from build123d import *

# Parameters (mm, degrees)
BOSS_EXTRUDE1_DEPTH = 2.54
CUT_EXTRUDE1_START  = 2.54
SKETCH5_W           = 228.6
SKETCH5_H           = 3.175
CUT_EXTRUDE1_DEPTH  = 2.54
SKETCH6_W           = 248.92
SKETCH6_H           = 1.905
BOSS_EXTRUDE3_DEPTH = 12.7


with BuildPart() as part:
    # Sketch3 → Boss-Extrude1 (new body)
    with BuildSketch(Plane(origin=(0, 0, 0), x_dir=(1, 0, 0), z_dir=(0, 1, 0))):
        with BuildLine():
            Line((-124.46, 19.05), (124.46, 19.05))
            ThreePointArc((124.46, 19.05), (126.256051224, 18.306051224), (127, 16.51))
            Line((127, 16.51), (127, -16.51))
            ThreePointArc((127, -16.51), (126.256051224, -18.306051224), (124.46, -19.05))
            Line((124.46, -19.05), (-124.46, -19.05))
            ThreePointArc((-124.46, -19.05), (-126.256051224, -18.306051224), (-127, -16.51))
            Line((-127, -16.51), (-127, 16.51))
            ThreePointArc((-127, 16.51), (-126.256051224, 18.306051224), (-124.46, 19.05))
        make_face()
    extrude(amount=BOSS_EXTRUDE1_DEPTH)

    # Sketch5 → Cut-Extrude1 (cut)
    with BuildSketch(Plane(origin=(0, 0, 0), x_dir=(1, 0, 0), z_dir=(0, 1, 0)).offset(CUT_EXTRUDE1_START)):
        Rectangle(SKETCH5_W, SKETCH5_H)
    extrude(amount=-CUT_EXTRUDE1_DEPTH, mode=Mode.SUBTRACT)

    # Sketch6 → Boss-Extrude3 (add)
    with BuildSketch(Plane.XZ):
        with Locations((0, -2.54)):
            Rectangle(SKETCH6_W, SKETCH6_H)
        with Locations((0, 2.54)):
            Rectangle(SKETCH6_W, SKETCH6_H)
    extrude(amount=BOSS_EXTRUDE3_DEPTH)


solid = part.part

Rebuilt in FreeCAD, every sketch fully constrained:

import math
import FreeCAD as App
import Part
import Sketcher
Q = App.Units.Quantity

doc = App.newDocument("Part")
params = doc.addObject("Spreadsheet::Sheet", "Params")
for row, (alias, value) in enumerate([
    ("sketch1_radius", "0.1 in"),
    ("sketch1_width", "9.8 in"),
    ("sketch1_height", "1.3 in"),
    ("pad1_length", "0.1 in"),
    ("sketch2_width", "9 in"),
    ("sketch2_height", "0.125 in"),
    ("pocket1_length", "0.1 in"),
    ("sketch3_width", "9.8 in"),
    ("sketch3_height", "0.075 in"),
    ("pad2_length", "0.5 in"),
], start=1):
    params.set(f"A{row}", alias)
    params.set(f"B{row}", "=" + value)
    params.setAlias(f"B{row}", alias)

body = doc.addObject("PartDesign::Body", "Body")

sketch1 = body.newObject("Sketcher::SketchObject", "Sketch")
sketch1.AttachmentSupport = (doc.getObject("XZ_Plane"), [""])
sketch1.MapMode = "FlatFace"
sketch1.addGeometry(Part.LineSegment(App.Vector(124.5, -19.1, 0), App.Vector(-124.5, -19.1, 0)), False)
sketch1.addGeometry(Part.ArcOfCircle(Part.Circle(App.Vector(-124.5, -16.5, 0), App.Vector(0, 0, 1), 2.5), math.radians(-180), math.radians(-90)), False)
sketch1.addGeometry(Part.LineSegment(App.Vector(-127, -16.5, 0), App.Vector(-127, 16.5, 0)), False)
sketch1.addGeometry(Part.ArcOfCircle(Part.Circle(App.Vector(-124.5, 16.5, 0), App.Vector(0, 0, 1), 2.5), math.radians(90), math.radians(180)), False)
sketch1.addGeometry(Part.LineSegment(App.Vector(-124.5, 19.1, 0), App.Vector(124.5, 19.1, 0)), False)
sketch1.addGeometry(Part.ArcOfCircle(Part.Circle(App.Vector(124.5, 16.5, 0), App.Vector(0, 0, 1), 2.5), math.radians(0), math.radians(90)), False)
sketch1.addGeometry(Part.LineSegment(App.Vector(127, 16.5, 0), App.Vector(127, -16.5, 0)), False)
sketch1.addGeometry(Part.ArcOfCircle(Part.Circle(App.Vector(124.5, -16.5, 0), App.Vector(0, 0, 1), 2.5), math.radians(-90), math.radians(0)), False)
sketch1.addConstraint(Sketcher.Constraint("Tangent", 0, 2, 1, 2))
sketch1.addConstraint(Sketcher.Constraint("Tangent", 1, 1, 2, 1))
sketch1.addConstraint(Sketcher.Constraint("Tangent", 2, 2, 3, 2))
sketch1.addConstraint(Sketcher.Constraint("Tangent", 3, 1, 4, 1))
sketch1.addConstraint(Sketcher.Constraint("Tangent", 4, 2, 5, 2))
sketch1.addConstraint(Sketcher.Constraint("Tangent", 5, 1, 6, 1))
sketch1.addConstraint(Sketcher.Constraint("Tangent", 6, 2, 7, 2))
sketch1.addConstraint(Sketcher.Constraint("Tangent", 7, 1, 0, 1))
sketch1.addConstraint(Sketcher.Constraint("Horizontal", 0))
sketch1.addConstraint(Sketcher.Constraint("Vertical", 2))
sketch1.addConstraint(Sketcher.Constraint("Horizontal", 4))
sketch1.addConstraint(Sketcher.Constraint("Vertical", 6))
sketch1.addConstraint(Sketcher.Constraint("Equal", 1, 3))
sketch1.addConstraint(Sketcher.Constraint("Equal", 3, 5))
sketch1.addConstraint(Sketcher.Constraint("Equal", 5, 7))
sketch1.addConstraint(Sketcher.Constraint("Symmetric", 1, 3, 5, 3, -1, 1))
sketch1.addConstraint(Sketcher.Constraint("Radius", 1, Q("0.1 in")))
sketch1.addConstraint(Sketcher.Constraint("DistanceX", 0, 2, 0, 1, Q("9.8 in")))
sketch1.addConstraint(Sketcher.Constraint("DistanceY", 2, 1, 2, 2, Q("1.3 in")))
sketch1.setExpression("Constraints[16]", "Params.sketch1_radius")
sketch1.setExpression("Constraints[17]", "Params.sketch1_width")
sketch1.setExpression("Constraints[18]", "Params.sketch1_height")
pad1 = body.newObject("PartDesign::Pad", "Pad")
pad1.Profile = sketch1
pad1.setExpression("Length", "Params.pad1_length")
pad1.Reversed = True

sketch2 = body.newObject("Sketcher::SketchObject", "Sketch001")
sketch2.AttachmentSupport = (doc.getObject("XZ_Plane"), [""])
sketch2.MapMode = "FlatFace"
sketch2.AttachmentOffset = App.Placement(App.Vector(0, 0, -0.1 * 25.4), App.Rotation())
sketch2.addGeometry(Part.LineSegment(App.Vector(-114.3, -1.6, 0), App.Vector(-114.3, 1.6, 0)), False)
sketch2.addGeometry(Part.LineSegment(App.Vector(-114.3, 1.6, 0), App.Vector(114.3, 1.6, 0)), False)
sketch2.addGeometry(Part.LineSegment(App.Vector(114.3, 1.6, 0), App.Vector(114.3, -1.6, 0)), False)
sketch2.addGeometry(Part.LineSegment(App.Vector(114.3, -1.6, 0), App.Vector(-114.3, -1.6, 0)), False)
sketch2.addConstraint(Sketcher.Constraint("Coincident", 0, 2, 1, 1))
sketch2.addConstraint(Sketcher.Constraint("Coincident", 1, 2, 2, 1))
sketch2.addConstraint(Sketcher.Constraint("Coincident", 2, 2, 3, 1))
sketch2.addConstraint(Sketcher.Constraint("Coincident", 3, 2, 0, 1))
sketch2.addConstraint(Sketcher.Constraint("Vertical", 0))
sketch2.addConstraint(Sketcher.Constraint("Horizontal", 1))
sketch2.addConstraint(Sketcher.Constraint("Vertical", 2))
sketch2.addConstraint(Sketcher.Constraint("Horizontal", 3))
sketch2.addConstraint(Sketcher.Constraint("Symmetric", 0, 2, 2, 2, -1, 1))
sketch2.addConstraint(Sketcher.Constraint("DistanceX", 1, 1, 1, 2, Q("9 in")))
sketch2.addConstraint(Sketcher.Constraint("DistanceY", 0, 1, 0, 2, Q("0.125 in")))
sketch2.setExpression("Constraints[9]", "Params.sketch2_width")
sketch2.setExpression("Constraints[10]", "Params.sketch2_height")
pocket1 = body.newObject("PartDesign::Pocket", "Pocket")
pocket1.Profile = sketch2
pocket1.setExpression("Length", "Params.pocket1_length")
pocket1.Reversed = True

sketch3 = body.newObject("Sketcher::SketchObject", "Sketch002")
sketch3.AttachmentSupport = (doc.getObject("XZ_Plane"), [""])
sketch3.MapMode = "FlatFace"
sketch3.addGeometry(Part.LineSegment(App.Vector(-124.5, -1.6, 0), App.Vector(-124.5, -3.5, 0)), False)
sketch3.addGeometry(Part.LineSegment(App.Vector(-124.5, -3.5, 0), App.Vector(124.5, -3.5, 0)), False)
sketch3.addGeometry(Part.LineSegment(App.Vector(124.5, -3.5, 0), App.Vector(124.5, -1.6, 0)), False)
sketch3.addGeometry(Part.LineSegment(App.Vector(124.5, -1.6, 0), App.Vector(-124.5, -1.6, 0)), False)
sketch3.addGeometry(Part.LineSegment(App.Vector(-124.5, 3.5, 0), App.Vector(-124.5, 1.6, 0)), False)
sketch3.addGeometry(Part.LineSegment(App.Vector(-124.5, 1.6, 0), App.Vector(124.5, 1.6, 0)), False)
sketch3.addGeometry(Part.LineSegment(App.Vector(124.5, 1.6, 0), App.Vector(124.5, 3.5, 0)), False)
sketch3.addGeometry(Part.LineSegment(App.Vector(124.5, 3.5, 0), App.Vector(-124.5, 3.5, 0)), False)
sketch3.addConstraint(Sketcher.Constraint("Coincident", 0, 2, 1, 1))
sketch3.addConstraint(Sketcher.Constraint("Coincident", 1, 2, 2, 1))
sketch3.addConstraint(Sketcher.Constraint("Coincident", 2, 2, 3, 1))
sketch3.addConstraint(Sketcher.Constraint("Coincident", 3, 2, 0, 1))
sketch3.addConstraint(Sketcher.Constraint("Coincident", 4, 2, 5, 1))
sketch3.addConstraint(Sketcher.Constraint("Coincident", 5, 2, 6, 1))
sketch3.addConstraint(Sketcher.Constraint("Coincident", 6, 2, 7, 1))
sketch3.addConstraint(Sketcher.Constraint("Coincident", 7, 2, 4, 1))
sketch3.addConstraint(Sketcher.Constraint("Vertical", 0))
sketch3.addConstraint(Sketcher.Constraint("Horizontal", 1))
sketch3.addConstraint(Sketcher.Constraint("Vertical", 2))
sketch3.addConstraint(Sketcher.Constraint("Horizontal", 3))
sketch3.addConstraint(Sketcher.Constraint("Vertical", 4))
sketch3.addConstraint(Sketcher.Constraint("Horizontal", 5))
sketch3.addConstraint(Sketcher.Constraint("Vertical", 6))
sketch3.addConstraint(Sketcher.Constraint("Horizontal", 7))
sketch3.addConstraint(Sketcher.Constraint("Symmetric", 2, 2, 4, 2, -1, 1))
sketch3.addConstraint(Sketcher.Constraint("Symmetric", 0, 2, 6, 2, -1, 1))
sketch3.addConstraint(Sketcher.Constraint("Vertical", 3, 2, 4, 2))
sketch3.addConstraint(Sketcher.Constraint("DistanceX", 1, 1, 1, 2, Q("9.8 in")))
sketch3.addConstraint(Sketcher.Constraint("DistanceY", 0, 2, 4, 2, Q("0.2 in")))
sketch3.addConstraint(Sketcher.Constraint("DistanceY", 0, 2, 0, 1, Q("0.075 in")))
sketch3.setExpression("Constraints[19]", "Params.sketch3_width")
sketch3.setExpression("Constraints[21]", "Params.sketch3_height")
pad2 = body.newObject("PartDesign::Pad", "Pad001")
pad2.Profile = sketch3
pad2.setExpression("Length", "Params.pad2_length")

doc.recompute()
